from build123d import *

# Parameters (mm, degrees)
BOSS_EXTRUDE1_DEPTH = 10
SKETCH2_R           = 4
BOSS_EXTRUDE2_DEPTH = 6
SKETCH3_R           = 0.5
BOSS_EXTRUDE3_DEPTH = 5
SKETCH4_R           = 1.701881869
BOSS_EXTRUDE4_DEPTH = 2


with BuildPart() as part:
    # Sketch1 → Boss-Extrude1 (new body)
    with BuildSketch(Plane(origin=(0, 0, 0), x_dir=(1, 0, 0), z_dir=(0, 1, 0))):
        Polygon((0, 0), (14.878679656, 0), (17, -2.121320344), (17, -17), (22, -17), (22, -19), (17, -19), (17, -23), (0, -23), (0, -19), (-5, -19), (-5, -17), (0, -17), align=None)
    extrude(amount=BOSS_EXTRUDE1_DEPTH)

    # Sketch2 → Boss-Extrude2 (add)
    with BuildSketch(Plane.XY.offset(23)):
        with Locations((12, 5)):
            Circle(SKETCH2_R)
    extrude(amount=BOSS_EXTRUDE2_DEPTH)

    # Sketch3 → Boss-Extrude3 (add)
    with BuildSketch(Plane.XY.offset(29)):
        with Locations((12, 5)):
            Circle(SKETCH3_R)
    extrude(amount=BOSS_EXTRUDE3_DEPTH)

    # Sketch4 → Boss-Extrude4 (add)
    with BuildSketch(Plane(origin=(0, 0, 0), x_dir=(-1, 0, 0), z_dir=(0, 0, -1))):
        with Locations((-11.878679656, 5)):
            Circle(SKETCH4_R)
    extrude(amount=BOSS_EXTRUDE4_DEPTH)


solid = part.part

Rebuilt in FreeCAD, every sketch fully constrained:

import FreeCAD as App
import Part
import Sketcher
from FreeCAD import Vector
Q = App.Units.Quantity

doc = App.newDocument("Part")
body = doc.addObject("PartDesign::Body", "Body")

# Sketch on XZ plane
sketch1 = body.newObject("Sketcher::SketchObject", "Sketch")
sketch1.AttachmentSupport = (doc.getObject("XZ_Plane"), [""])
sketch1.MapMode = "FlatFace"
sketch1.addGeometry([
    Part.LineSegment(Vector(14.9, 0, 0), Vector(0, 0, 0)),  # 0
    Part.LineSegment(Vector(0, 0, 0), Vector(0, 17, 0)),  # 1
    Part.LineSegment(Vector(0, 17, 0), Vector(-5, 17, 0)),  # 2
    Part.LineSegment(Vector(-5, 17, 0), Vector(-5, 19, 0)),  # 3
    Part.LineSegment(Vector(-5, 19, 0), Vector(0, 19, 0)),  # 4
    Part.LineSegment(Vector(0, 19, 0), Vector(0, 23, 0)),  # 5
    Part.LineSegment(Vector(0, 23, 0), Vector(17, 23, 0)),  # 6
    Part.LineSegment(Vector(17, 23, 0), Vector(17, 19, 0)),  # 7
    Part.LineSegment(Vector(17, 19, 0), Vector(22, 19, 0)),  # 8
    Part.LineSegment(Vector(22, 19, 0), Vector(22, 17, 0)),  # 9
    Part.LineSegment(Vector(22, 17, 0), Vector(17, 17, 0)),  # 10
    Part.LineSegment(Vector(17, 17, 0), Vector(17, 2.1, 0)),  # 11
    Part.LineSegment(Vector(17, 2.1, 0), Vector(14.9, 0, 0)),  # 12
], False)
sketch1.addConstraint([
    Sketcher.Constraint("Coincident", 0, 2, 1, 1),
    Sketcher.Constraint("Coincident", 1, 2, 2, 1),
    Sketcher.Constraint("Coincident", 2, 2, 3, 1),
    Sketcher.Constraint("Coincident", 3, 2, 4, 1),
    Sketcher.Constraint("Coincident", 4, 2, 5, 1),
    Sketcher.Constraint("Coincident", 5, 2, 6, 1),
    Sketcher.Constraint("Coincident", 6, 2, 7, 1),
    Sketcher.Constraint("Coincident", 7, 2, 8, 1),
    Sketcher.Constraint("Coincident", 8, 2, 9, 1),
    Sketcher.Constraint("Coincident", 9, 2, 10, 1),
    Sketcher.Constraint("Coincident", 10, 2, 11, 1),
    Sketcher.Constraint("Coincident", 11, 2, 12, 1),
    Sketcher.Constraint("Coincident", 12, 2, 0, 1),
    Sketcher.Constraint("Horizontal", 0),
    Sketcher.Constraint("Vertical", 1),
    Sketcher.Constraint("Horizontal", 2),
    Sketcher.Constraint("Vertical", 3),
    Sketcher.Constraint("Horizontal", 4),
    Sketcher.Constraint("Vertical", 5),
    Sketcher.Constraint("Horizontal", 6),
    Sketcher.Constraint("Vertical", 7),
    Sketcher.Constraint("Horizontal", 8),
    Sketcher.Constraint("Vertical", 9),
    Sketcher.Constraint("Horizontal", 10),
    Sketcher.Constraint("Vertical", 11),
    Sketcher.Constraint("Coincident", 0, 2, -1, 1),
    Sketcher.Constraint("PointOnObject", 4, 2, -2),
    Sketcher.Constraint("Horizontal", 4, 2, 7, 2),
    Sketcher.Constraint("Horizontal", 2, 2, 9, 2),
    Sketcher.Constraint("Vertical", 7, 2, 10, 2),
    Sketcher.Constraint("Equal", 4, 8),
    Sketcher.Constraint("Equal", 6, 1),
    Sketcher.Constraint("Equal", 0, 11),
    Sketcher.Constraint("DistanceX", 2, 2, 2, 1, Q("5 mm")),
    Sketcher.Constraint("DistanceX", 6, 1, 6, 2, Q("17 mm")),
    Sketcher.Constraint("DistanceY", 3, 1, 3, 2, Q("2 mm")),
    Sketcher.Constraint("DistanceY", 5, 1, 5, 2, Q("4 mm")),
    Sketcher.Constraint("Distance", 12, Q("3 mm")),
])
pad1 = body.newObject("PartDesign::Pad", "Pad")
pad1.Profile = sketch1
pad1.Length = 10
pad1.Reversed = True

# Sketch on XY plane
sketch2 = body.newObject("Sketcher::SketchObject", "Sketch001")
sketch2.AttachmentSupport = (doc.getObject("XY_Plane"), [""])
sketch2.MapMode = "FlatFace"
sketch2.AttachmentOffset = App.Placement(Vector(0, 0, 23), App.Rotation())
sketch2.addGeometry(Part.Circle(Vector(12, 5, 0), Vector(0, 0, 1), 4), False)
sketch2.addConstraint([
    Sketcher.Constraint("Diameter", 0, Q("8 mm")),
    Sketcher.Constraint("DistanceX", -1, 1, 0, 3, Q("12 mm")),
    Sketcher.Constraint("DistanceY", -1, 1, 0, 3, Q("5 mm")),
])
pad2 = body.newObject("PartDesign::Pad", "Pad001")
pad2.Profile = sketch2
pad2.Length = 6

# Sketch on XY plane
sketch3 = body.newObject("Sketcher::SketchObject", "Sketch002")
sketch3.AttachmentSupport = (doc.getObject("XY_Plane"), [""])
sketch3.MapMode = "FlatFace"
sketch3.AttachmentOffset = App.Placement(Vector(0, 0, 29), App.Rotation())
sketch3.addGeometry(Part.Circle(Vector(12, 5, 0), Vector(0, 0, 1), 0.5), False)
sketch3.addConstraint([
    Sketcher.Constraint("Diameter", 0, Q("1 mm")),
    Sketcher.Constraint("DistanceX", -1, 1, 0, 3, Q("12 mm")),
    Sketcher.Constraint("DistanceY", -1, 1, 0, 3, Q("5 mm")),
])
pad3 = body.newObject("PartDesign::Pad", "Pad002")
pad3.Profile = sketch3
pad3.Length = 5

# Sketch on XY plane
sketch4 = body.newObject("Sketcher::SketchObject", "Sketch003")
sketch4.AttachmentSupport = (doc.getObject("XY_Plane"), [""])
sketch4.MapMode = "FlatFace"
sketch4.addGeometry(Part.Circle(Vector(11.9, 5, 0), Vector(0, 0, 1), 1.7), False)
sketch4.addConstraint([
    Sketcher.Constraint("DistanceY", -1, 1, 0, 3, Q("5 mm")),
    Sketcher.Constraint("Diameter", 0, Q("3.403764 mm")),
    Sketcher.Constraint("DistanceX", -1, 1, 0, 3, Q("11.87868 mm")),
])
pad4 = body.newObject("PartDesign::Pad", "Pad003")
pad4.Profile = sketch4
pad4.Length = 2
pad4.Reversed = True

doc.recompute()
